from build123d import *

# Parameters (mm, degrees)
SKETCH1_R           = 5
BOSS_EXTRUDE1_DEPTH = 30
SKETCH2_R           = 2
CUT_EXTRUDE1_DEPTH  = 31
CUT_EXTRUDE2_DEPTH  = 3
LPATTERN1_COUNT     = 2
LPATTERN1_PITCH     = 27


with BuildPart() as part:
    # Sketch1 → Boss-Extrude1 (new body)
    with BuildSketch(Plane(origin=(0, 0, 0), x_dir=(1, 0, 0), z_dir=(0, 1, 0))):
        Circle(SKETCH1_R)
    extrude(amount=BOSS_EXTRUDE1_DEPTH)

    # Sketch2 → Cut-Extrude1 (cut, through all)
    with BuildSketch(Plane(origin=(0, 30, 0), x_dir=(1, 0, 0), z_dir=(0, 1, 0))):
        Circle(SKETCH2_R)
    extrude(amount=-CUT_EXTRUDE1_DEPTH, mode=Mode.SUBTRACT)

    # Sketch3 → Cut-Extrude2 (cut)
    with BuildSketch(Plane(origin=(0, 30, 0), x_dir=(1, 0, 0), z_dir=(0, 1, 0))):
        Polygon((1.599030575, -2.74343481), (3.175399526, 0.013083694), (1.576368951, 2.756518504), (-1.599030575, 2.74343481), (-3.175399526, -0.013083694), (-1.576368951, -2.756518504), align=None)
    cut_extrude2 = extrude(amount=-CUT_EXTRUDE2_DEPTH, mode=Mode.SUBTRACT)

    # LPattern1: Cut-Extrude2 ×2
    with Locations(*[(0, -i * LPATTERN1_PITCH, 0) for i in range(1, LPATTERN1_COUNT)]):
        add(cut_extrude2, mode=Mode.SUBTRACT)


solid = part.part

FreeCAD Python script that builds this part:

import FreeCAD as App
import Part
import Sketcher

V = App.Vector
Q = App.Units.Quantity

doc = App.newDocument("Part")
body = doc.addObject("PartDesign::Body", "Body")

sketch1 = doc.addObject("Sketcher::SketchObject", "Sketch")
body.addObject(sketch1)
sketch1.AttachmentSupport = (doc.XZ_Plane, [""])
sketch1.MapMode = "FlatFace"
sketch1.addGeometry(Part.Circle(V(0, 0, 0), V(0, 0, 1), 5), False)
sketch1.addConstraint([
    Sketcher.Constraint("Coincident", 0, 3, -1, 1),
    Sketcher.Constraint("Diameter", 0, Q("10 mm")),
])
pad1 = doc.addObject("PartDesign::Pad", "Pad")
body.addObject(pad1)
pad1.Profile = sketch1
pad1.Length = 30
pad1.Reversed = True

sketch2 = doc.addObject("Sketcher::SketchObject", "Sketch001")
body.addObject(sketch2)
sketch2.AttachmentSupport = (doc.XZ_Plane, [""])
sketch2.MapMode = "FlatFace"
sketch2.AttachmentOffset = App.Placement(V(0, 0, -30), App.Rotation())
sketch2.addGeometry(Part.Circle(V(0, 0, 0), V(0, 0, 1), 2), False)
sketch2.addConstraint([
    Sketcher.Constraint("Coincident", 0, 3, -1, 1),
    Sketcher.Constraint("Diameter", 0, Q("4 mm")),
])
pocket1 = doc.addObject("PartDesign::Pocket", "Pocket")
body.addObject(pocket1)
pocket1.Profile = sketch2
pocket1.Type = "ThroughAll"
pocket1.Reversed = True

sketch3 = doc.addObject("Sketcher::SketchObject", "Sketch002")
body.addObject(sketch3)
sketch3.AttachmentSupport = (doc.XZ_Plane, [""])
sketch3.MapMode = "FlatFace"
sketch3.AttachmentOffset = App.Placement(V(0, 0, -30), App.Rotation())
sketch3.addGeometry([
    Part.LineSegment(V(1.6, 2.7, 0), V(3.2, 0, 0)),
    Part.LineSegment(V(3.2, 0, 0), V(1.6, -2.8, 0)),
    Part.LineSegment(V(1.6, -2.8, 0), V(-1.6, -2.7, 0)),
    Part.LineSegment(V(-1.6, -2.7, 0), V(-3.2, 0, 0)),
    Part.LineSegment(V(-3.2, 0, 0), V(-1.6, 2.8, 0)),
    Part.LineSegment(V(-1.6, 2.8, 0), V(1.6, 2.7, 0)),
], False)
sketch3.addConstraint([
    Sketcher.Constraint("Coincident", 0, 2, 1, 1),
    Sketcher.Constraint("Coincident", 1, 2, 2, 1),
    Sketcher.Constraint("Coincident", 2, 2, 3, 1),
    Sketcher.Constraint("Coincident", 3, 2, 4, 1),
    Sketcher.Constraint("Coincident", 4, 2, 5, 1),
    Sketcher.Constraint("Coincident", 5, 2, 0, 1),
    Sketcher.Constraint("Symmetric", 0, 2, 3, 2, -1, 1),
    Sketcher.Constraint("Symmetric", 1, 2, 4, 2, -1, 1),
    Sketcher.Constraint("Symmetric", 2, 2, 5, 2, -1, 1),
    Sketcher.Constraint("Equal", 0, 1),
    Sketcher.Constraint("Equal", 1, 2),
    Sketcher.Constraint("DistanceX", -1, 1, 0, 2, Q("3.1754 mm")),
    Sketcher.Constraint("DistanceX", 2, 2, 1, 2, Q("3.1754 mm")),
    Sketcher.Constraint("DistanceX", -1, 1, 1, 2, Q("1.576369 mm")),
    Sketcher.Constraint("DistanceY", 1, 2, -1, 1, Q("2.756519 mm")),
])
pocket2 = doc.addObject("PartDesign::Pocket", "Pocket001")
body.addObject(pocket2)
pocket2.Profile = sketch3
pocket2.Length = 3
pocket2.Reversed = True
doc.recompute()

linearpattern = doc.addObject("PartDesign::LinearPattern", "LinearPattern")
body.addObject(linearpattern)
linearpattern.Originals = [pocket2]
linearpattern.Direction = (doc.Y_Axis, [""])
linearpattern.Mode = "offset"
linearpattern.Offset = 27
linearpattern.Occurrences = 2
linearpattern.Reversed = True
body.Tip = linearpattern

doc.recompute()
